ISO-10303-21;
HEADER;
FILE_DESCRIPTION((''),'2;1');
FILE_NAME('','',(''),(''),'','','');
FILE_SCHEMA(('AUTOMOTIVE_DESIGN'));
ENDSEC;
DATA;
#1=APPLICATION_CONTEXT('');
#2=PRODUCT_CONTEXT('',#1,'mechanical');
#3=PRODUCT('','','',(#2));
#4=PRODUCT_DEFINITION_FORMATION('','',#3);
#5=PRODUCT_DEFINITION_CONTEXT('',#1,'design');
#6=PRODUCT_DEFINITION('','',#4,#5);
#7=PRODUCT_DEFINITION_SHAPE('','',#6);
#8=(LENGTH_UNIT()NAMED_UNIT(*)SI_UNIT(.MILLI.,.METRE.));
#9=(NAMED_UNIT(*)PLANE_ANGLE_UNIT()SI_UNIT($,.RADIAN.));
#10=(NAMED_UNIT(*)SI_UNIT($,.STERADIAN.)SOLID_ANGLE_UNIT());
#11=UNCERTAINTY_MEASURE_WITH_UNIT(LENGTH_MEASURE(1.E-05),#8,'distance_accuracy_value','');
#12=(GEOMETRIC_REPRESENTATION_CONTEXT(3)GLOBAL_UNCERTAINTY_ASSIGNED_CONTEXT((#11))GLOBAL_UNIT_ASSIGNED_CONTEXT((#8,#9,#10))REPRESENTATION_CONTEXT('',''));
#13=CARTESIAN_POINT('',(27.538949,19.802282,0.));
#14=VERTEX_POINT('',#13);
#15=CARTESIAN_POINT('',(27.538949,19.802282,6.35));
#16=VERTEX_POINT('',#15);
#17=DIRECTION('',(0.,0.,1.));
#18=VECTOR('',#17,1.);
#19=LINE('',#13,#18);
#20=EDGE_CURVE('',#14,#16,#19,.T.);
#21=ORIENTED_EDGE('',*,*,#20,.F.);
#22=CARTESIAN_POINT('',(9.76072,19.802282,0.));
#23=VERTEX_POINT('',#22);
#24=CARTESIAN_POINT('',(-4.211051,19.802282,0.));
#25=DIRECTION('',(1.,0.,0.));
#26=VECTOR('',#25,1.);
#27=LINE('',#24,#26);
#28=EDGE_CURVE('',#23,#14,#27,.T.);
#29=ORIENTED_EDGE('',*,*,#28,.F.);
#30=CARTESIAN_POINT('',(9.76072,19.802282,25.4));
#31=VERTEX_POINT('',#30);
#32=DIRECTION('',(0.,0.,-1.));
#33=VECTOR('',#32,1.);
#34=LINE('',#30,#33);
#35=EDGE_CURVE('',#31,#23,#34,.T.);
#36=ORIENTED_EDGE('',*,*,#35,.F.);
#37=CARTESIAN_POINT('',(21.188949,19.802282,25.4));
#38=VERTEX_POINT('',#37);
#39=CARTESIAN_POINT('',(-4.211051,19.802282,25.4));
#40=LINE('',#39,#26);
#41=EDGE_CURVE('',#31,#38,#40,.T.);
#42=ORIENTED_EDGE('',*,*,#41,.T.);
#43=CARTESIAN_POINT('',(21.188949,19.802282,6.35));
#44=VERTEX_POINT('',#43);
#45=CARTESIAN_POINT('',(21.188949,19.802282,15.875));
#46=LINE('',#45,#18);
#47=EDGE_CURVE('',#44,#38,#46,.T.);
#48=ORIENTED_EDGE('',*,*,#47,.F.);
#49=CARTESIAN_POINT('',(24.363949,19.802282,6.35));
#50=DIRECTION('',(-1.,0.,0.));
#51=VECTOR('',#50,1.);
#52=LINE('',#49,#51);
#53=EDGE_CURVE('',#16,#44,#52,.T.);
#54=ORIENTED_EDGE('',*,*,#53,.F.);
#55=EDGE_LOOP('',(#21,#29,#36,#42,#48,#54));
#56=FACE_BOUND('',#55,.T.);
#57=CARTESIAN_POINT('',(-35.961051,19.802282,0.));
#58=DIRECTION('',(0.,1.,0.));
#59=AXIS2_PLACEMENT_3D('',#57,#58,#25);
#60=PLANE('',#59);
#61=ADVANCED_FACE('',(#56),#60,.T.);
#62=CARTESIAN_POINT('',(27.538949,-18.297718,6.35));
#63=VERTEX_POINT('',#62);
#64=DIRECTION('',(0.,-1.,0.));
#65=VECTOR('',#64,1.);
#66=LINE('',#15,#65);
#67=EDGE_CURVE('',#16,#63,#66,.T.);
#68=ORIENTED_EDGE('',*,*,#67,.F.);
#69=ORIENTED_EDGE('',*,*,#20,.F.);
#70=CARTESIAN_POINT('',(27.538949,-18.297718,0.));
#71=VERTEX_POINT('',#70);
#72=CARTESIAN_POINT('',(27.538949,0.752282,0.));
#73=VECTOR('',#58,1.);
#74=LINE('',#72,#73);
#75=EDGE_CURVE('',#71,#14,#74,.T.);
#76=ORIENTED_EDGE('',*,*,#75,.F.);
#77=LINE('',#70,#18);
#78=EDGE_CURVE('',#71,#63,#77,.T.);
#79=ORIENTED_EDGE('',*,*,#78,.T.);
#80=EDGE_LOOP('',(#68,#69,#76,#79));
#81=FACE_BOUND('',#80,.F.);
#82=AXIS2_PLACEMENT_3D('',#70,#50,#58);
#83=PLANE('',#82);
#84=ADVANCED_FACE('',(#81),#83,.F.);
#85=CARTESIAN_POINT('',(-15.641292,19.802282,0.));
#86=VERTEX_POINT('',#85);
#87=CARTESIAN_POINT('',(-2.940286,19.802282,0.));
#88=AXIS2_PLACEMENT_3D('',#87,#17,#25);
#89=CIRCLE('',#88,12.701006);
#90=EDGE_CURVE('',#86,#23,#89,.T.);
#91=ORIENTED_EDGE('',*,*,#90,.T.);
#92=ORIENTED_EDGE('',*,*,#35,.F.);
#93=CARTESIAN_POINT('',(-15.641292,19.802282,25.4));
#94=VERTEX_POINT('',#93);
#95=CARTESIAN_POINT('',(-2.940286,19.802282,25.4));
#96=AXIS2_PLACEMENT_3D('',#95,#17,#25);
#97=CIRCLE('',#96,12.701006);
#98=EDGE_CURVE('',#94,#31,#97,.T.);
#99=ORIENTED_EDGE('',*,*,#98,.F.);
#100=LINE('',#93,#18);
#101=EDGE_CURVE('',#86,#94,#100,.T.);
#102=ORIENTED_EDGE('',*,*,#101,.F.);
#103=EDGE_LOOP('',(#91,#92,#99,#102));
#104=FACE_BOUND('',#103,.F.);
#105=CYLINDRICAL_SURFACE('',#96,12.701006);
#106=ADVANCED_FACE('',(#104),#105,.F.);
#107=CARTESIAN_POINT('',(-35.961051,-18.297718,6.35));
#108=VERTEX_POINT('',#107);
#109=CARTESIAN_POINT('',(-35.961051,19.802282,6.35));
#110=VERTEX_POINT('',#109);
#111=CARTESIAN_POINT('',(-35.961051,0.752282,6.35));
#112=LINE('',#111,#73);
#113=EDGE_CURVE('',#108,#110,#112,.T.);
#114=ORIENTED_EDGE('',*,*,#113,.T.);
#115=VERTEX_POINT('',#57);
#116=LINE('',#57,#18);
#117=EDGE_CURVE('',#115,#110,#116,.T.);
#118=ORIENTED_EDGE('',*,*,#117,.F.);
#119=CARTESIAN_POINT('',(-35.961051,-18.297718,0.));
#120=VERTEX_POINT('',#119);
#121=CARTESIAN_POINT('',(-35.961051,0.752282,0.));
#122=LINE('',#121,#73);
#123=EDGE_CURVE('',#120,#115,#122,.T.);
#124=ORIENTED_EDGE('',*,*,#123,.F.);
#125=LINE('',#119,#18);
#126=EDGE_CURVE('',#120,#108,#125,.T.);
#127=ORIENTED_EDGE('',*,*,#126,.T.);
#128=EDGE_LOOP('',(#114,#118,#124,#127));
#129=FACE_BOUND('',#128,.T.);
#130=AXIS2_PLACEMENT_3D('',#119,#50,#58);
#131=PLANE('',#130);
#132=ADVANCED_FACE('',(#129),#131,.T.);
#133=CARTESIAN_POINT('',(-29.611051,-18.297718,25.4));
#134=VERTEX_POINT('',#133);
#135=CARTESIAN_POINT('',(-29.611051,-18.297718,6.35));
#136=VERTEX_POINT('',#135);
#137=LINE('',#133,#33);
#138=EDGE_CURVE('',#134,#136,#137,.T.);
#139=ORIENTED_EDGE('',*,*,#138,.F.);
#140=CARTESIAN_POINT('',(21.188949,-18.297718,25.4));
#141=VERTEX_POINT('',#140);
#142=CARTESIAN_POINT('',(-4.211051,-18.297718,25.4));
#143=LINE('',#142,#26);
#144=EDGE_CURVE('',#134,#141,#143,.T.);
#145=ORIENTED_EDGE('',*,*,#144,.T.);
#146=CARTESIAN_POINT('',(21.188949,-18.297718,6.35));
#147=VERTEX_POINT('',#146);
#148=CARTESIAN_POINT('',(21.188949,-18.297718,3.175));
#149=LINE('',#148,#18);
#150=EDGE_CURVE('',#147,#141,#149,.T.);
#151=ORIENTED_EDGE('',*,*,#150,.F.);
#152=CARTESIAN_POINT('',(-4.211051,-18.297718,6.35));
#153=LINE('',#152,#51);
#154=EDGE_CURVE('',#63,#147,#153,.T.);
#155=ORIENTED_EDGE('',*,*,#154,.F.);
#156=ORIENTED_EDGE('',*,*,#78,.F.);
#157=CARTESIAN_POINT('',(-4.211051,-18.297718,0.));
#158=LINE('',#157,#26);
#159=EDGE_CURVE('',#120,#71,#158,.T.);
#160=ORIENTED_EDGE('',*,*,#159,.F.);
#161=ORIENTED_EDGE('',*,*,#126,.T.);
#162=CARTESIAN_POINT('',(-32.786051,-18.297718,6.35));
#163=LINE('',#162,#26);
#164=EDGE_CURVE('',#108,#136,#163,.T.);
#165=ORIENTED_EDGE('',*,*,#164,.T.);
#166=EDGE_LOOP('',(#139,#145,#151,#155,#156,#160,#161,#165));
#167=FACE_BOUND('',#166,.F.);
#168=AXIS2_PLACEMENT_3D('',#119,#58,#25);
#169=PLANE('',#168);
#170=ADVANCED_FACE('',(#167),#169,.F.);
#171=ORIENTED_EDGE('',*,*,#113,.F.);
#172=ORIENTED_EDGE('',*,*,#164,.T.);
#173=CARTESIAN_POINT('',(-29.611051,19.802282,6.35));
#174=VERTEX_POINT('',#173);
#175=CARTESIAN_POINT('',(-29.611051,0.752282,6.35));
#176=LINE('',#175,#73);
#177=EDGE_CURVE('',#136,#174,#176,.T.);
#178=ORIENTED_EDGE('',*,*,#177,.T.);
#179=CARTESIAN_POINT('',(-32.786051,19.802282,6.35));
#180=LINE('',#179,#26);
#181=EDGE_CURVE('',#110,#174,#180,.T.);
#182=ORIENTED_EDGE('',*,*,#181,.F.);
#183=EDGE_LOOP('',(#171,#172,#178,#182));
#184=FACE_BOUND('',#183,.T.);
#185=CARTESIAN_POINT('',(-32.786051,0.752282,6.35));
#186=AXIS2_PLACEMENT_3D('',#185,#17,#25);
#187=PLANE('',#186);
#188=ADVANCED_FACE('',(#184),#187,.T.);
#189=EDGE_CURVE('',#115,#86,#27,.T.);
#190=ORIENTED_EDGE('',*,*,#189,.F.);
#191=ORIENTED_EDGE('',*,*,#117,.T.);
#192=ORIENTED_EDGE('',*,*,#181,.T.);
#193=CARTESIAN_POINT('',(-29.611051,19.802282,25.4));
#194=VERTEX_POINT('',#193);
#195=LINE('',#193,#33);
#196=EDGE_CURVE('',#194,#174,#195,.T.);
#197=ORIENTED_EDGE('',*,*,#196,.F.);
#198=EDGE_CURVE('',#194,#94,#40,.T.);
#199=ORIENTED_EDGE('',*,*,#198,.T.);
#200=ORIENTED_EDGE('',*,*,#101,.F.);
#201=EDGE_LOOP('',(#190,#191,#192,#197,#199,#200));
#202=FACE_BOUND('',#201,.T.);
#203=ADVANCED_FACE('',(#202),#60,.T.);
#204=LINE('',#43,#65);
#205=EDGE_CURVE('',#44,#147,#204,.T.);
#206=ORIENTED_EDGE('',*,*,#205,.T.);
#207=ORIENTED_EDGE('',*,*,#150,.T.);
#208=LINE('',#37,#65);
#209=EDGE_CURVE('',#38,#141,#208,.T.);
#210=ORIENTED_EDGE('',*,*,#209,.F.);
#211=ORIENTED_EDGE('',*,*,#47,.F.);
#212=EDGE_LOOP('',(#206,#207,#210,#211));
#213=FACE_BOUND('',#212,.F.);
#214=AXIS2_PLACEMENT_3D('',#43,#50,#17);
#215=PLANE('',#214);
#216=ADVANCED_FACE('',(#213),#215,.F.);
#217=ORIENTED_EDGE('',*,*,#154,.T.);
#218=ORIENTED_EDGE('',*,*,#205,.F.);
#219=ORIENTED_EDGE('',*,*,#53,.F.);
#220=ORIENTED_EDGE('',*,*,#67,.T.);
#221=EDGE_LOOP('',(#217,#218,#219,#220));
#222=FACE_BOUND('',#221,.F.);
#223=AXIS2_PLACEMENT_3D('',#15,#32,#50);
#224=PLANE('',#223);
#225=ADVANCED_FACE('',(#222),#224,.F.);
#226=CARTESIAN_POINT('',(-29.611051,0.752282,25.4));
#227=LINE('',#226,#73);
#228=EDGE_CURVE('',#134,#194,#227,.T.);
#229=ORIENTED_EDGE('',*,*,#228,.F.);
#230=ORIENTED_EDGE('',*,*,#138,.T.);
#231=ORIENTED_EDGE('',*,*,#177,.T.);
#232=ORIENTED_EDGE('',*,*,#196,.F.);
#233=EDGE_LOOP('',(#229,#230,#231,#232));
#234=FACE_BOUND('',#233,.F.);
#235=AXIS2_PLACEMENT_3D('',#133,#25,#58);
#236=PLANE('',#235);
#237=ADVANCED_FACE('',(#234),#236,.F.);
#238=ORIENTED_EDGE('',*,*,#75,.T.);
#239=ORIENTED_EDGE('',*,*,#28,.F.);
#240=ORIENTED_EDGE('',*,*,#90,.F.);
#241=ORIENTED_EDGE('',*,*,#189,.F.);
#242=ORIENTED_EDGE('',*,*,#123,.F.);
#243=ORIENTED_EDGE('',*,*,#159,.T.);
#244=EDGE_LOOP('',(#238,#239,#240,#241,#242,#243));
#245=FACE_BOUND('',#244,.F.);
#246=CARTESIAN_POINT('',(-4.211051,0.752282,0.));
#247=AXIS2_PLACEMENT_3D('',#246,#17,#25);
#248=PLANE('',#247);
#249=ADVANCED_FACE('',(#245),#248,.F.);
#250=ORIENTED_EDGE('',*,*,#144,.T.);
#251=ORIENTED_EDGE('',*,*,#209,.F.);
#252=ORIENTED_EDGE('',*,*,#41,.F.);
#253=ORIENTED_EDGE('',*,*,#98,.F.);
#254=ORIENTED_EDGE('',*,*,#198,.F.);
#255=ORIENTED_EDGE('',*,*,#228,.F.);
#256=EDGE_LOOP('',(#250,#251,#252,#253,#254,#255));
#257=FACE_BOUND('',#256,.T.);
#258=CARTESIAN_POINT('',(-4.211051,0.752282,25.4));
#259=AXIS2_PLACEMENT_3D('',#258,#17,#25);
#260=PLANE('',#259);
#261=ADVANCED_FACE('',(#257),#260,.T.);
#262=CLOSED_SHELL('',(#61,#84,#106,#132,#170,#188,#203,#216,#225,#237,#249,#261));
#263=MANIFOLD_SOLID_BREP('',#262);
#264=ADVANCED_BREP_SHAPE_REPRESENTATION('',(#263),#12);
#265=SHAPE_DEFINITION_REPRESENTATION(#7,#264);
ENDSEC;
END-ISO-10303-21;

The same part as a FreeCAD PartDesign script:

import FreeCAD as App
import Part
import Sketcher
Q = App.Units.Quantity


def add_polygon(sketch, points):
    """Adds a closed chain of lines whose ends are joined by coincident constraints."""
    first, n = sketch.GeometryCount, len(points)
    for a, b in zip(points, points[1:] + points[:1]):
        sketch.addGeometry(Part.LineSegment(App.Vector(*a, 0), App.Vector(*b, 0)), False)
    for i in range(n):
        sketch.addConstraint(Sketcher.Constraint("Coincident", first + i, 2, first + (i + 1) % n, 1))

doc = App.newDocument("Part")
body = doc.addObject("PartDesign::Body", "Body")

# Sketch on XY plane
sketch1 = doc.addObject("Sketcher::SketchObject", "Sketch")
body.addObject(sketch1)
sketch1.AttachmentSupport = (doc.XY_Plane, [""])
sketch1.MapMode = "FlatFace"
add_polygon(sketch1, [(-35.961051, 19.802282), (-35.961051, -18.297718), (27.538949, -18.297718), (27.538949, 19.802282)])  # lines 0-3
sketch1.addConstraint([
    Sketcher.Constraint("Vertical", 0),
    Sketcher.Constraint("Horizontal", 1),
    Sketcher.Constraint("Vertical", 2),
    Sketcher.Constraint("Horizontal", 3),
    Sketcher.Constraint("DistanceX", 1, 1, 1, 2, Q("2.5 in")),
    Sketcher.Constraint("DistanceY", 0, 2, 0, 1, Q("1.5 in")),
    Sketcher.Constraint("DistanceX", 0, 2, -1, 1, Q("35.961051 mm")),
    Sketcher.Constraint("DistanceY", 0, 2, -1, 1, Q("18.297718 mm")),
])
pad1 = doc.addObject("PartDesign::Pad", "Pad")
body.addObject(pad1)
pad1.Profile = sketch1
pad1.Length = Q("1 in")

# Sketch on XY plane
sketch2 = doc.addObject("Sketcher::SketchObject", "Sketch001")
body.addObject(sketch2)
sketch2.AttachmentSupport = (doc.XY_Plane, [""])
sketch2.MapMode = "FlatFace"
sketch2.AttachmentOffset = App.Placement(App.Vector(0, 0, 1 * 25.4), App.Rotation())
add_polygon(sketch2, [(-35.961051, 19.802282), (-35.961051, -18.297718), (-29.611051, -18.297718), (-29.611051, 19.802282)])  # lines 0-3
sketch2.addConstraint([
    Sketcher.Constraint("Vertical", 0),
    Sketcher.Constraint("Horizontal", 1),
    Sketcher.Constraint("Vertical", 2),
    Sketcher.Constraint("Horizontal", 3),
    Sketcher.Constraint("DistanceY", 0, 2, 0, 1, Q("1.5 in")),
    Sketcher.Constraint("DistanceX", 1, 1, 1, 2, Q("0.25 in")),
    Sketcher.Constraint("DistanceX", 0, 2, -1, 1, Q("35.961051 mm")),
    Sketcher.Constraint("DistanceY", 0, 2, -1, 1, Q("18.297718 mm")),
])
pocket1 = doc.addObject("PartDesign::Pocket", "Pocket")
body.addObject(pocket1)
pocket1.Profile = sketch2
pocket1.Length = Q("0.75 in")

# Sketch on XZ plane
sketch3 = doc.addObject("Sketcher::SketchObject", "Sketch002")
body.addObject(sketch3)
sketch3.AttachmentSupport = (doc.XZ_Plane, [""])
sketch3.MapMode = "FlatFace"
sketch3.AttachmentOffset = App.Placement(App.Vector(0, 0, -19.802282), App.Rotation())
add_polygon(sketch3, [(27.538949, 25.4), (27.538949, 6.35), (21.188949, 6.35), (21.188949, 25.4)])  # lines 0-3
sketch3.addConstraint([
    Sketcher.Constraint("Vertical", 0),
    Sketcher.Constraint("Horizontal", 1),
    Sketcher.Constraint("Vertical", 2),
    Sketcher.Constraint("Horizontal", 3),
    Sketcher.Constraint("DistanceY", -1, 1, 2, 2, Q("1 in")),
    Sketcher.Constraint("DistanceX", 1, 2, 1, 1, Q("0.25 in")),
    Sketcher.Constraint("DistanceY", 0, 2, 0, 1, Q("0.75 in")),
    Sketcher.Constraint("DistanceX", -1, 1, 0, 2, Q("27.538949 mm")),
])
pocket2 = doc.addObject("PartDesign::Pocket", "Pocket001")
body.addObject(pocket2)
pocket2.Profile = sketch3
pocket2.Type = "ThroughAll"
pocket2.Reversed = True

# Sketch on XY plane
sketch4 = doc.addObject("Sketcher::SketchObject", "Sketch003")
body.addObject(sketch4)
sketch4.AttachmentSupport = (doc.XY_Plane, [""])
sketch4.MapMode = "FlatFace"
sketch4.AttachmentOffset = App.Placement(App.Vector(0, 0, 1 * 25.4), App.Rotation())
sketch4.addGeometry(Part.Circle(App.Vector(-2.940286, 19.802282, 0), App.Vector(0, 0, 1), 12.701006), False)
sketch4.addConstraint([
    Sketcher.Constraint("Diameter", 0, Q("25.402012 mm")),
    Sketcher.Constraint("DistanceX", 0, 3, -1, 1, Q("2.940286 mm")),
    Sketcher.Constraint("DistanceY", -1, 1, 0, 3, Q("19.802282 mm")),
])
pocket3 = doc.addObject("PartDesign::Pocket", "Pocket002")
body.addObject(pocket3)
pocket3.Profile = sketch4
pocket3.Type = "ThroughAll"

doc.recompute()
